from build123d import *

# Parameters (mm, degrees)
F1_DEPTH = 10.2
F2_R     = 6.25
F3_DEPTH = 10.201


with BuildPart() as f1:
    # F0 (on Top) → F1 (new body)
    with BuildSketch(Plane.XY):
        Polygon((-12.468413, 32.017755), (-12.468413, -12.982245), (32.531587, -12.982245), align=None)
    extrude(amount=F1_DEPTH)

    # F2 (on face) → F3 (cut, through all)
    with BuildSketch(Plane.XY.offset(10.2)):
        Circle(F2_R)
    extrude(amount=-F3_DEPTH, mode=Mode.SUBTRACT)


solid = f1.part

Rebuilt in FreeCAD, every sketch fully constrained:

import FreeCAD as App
import Part
import Sketcher

doc = App.newDocument("Part")
body = doc.addObject("PartDesign::Body", "Body")

# Sketch on XY plane
sketch1 = body.newObject("Sketcher::SketchObject", "Sketch")
sketch1.AttachmentSupport = (doc.getObject("XY_Plane"), [""])
sketch1.MapMode = "FlatFace"
sketch1.addGeometry([
    Part.LineSegment(App.Vector(-12, 32, 0), App.Vector(-12, -13, 0)),
    Part.LineSegment(App.Vector(-12, -13, 0), App.Vector(33, -13, 0)),
    Part.LineSegment(App.Vector(33, -13, 0), App.Vector(-12, 32, 0)),
], False)
sketch1.addConstraint([
    Sketcher.Constraint("Coincident", 0, 2, 1, 1),
    Sketcher.Constraint("Coincident", 1, 2, 2, 1),
    Sketcher.Constraint("Coincident", 2, 2, 0, 1),
    Sketcher.Constraint("Vertical", 0),
    Sketcher.Constraint("Horizontal", 1),
    Sketcher.Constraint("Equal", 1, 0),
    Sketcher.Constraint("DistanceX", 1, 1, 1, 2, 45.0),
    Sketcher.Constraint("DistanceX", 0, 2, -1, 1, 12.468413),
    Sketcher.Constraint("DistanceY", 0, 2, -1, 1, 12.982245),
])
pad1 = body.newObject("PartDesign::Pad", "Pad")
pad1.Profile = sketch1
pad1.Length = 10.2

# Sketch on XY plane
sketch2 = body.newObject("Sketcher::SketchObject", "Sketch001")
sketch2.AttachmentSupport = (doc.getObject("XY_Plane"), [""])
sketch2.MapMode = "FlatFace"
sketch2.AttachmentOffset = App.Placement(App.Vector(0, 0, 10.2), App.Rotation())
sketch2.addGeometry(Part.Circle(App.Vector(0, 0, 0), App.Vector(0, 0, 1), 6), False)
sketch2.addConstraint([
    Sketcher.Constraint("Coincident", 0, 3, -1, 1),
    Sketcher.Constraint("Diameter", 0, 12.5),
])
pocket1 = body.newObject("PartDesign::Pocket", "Pocket")
pocket1.Profile = sketch2
pocket1.Type = "ThroughAll"

doc.recompute()
